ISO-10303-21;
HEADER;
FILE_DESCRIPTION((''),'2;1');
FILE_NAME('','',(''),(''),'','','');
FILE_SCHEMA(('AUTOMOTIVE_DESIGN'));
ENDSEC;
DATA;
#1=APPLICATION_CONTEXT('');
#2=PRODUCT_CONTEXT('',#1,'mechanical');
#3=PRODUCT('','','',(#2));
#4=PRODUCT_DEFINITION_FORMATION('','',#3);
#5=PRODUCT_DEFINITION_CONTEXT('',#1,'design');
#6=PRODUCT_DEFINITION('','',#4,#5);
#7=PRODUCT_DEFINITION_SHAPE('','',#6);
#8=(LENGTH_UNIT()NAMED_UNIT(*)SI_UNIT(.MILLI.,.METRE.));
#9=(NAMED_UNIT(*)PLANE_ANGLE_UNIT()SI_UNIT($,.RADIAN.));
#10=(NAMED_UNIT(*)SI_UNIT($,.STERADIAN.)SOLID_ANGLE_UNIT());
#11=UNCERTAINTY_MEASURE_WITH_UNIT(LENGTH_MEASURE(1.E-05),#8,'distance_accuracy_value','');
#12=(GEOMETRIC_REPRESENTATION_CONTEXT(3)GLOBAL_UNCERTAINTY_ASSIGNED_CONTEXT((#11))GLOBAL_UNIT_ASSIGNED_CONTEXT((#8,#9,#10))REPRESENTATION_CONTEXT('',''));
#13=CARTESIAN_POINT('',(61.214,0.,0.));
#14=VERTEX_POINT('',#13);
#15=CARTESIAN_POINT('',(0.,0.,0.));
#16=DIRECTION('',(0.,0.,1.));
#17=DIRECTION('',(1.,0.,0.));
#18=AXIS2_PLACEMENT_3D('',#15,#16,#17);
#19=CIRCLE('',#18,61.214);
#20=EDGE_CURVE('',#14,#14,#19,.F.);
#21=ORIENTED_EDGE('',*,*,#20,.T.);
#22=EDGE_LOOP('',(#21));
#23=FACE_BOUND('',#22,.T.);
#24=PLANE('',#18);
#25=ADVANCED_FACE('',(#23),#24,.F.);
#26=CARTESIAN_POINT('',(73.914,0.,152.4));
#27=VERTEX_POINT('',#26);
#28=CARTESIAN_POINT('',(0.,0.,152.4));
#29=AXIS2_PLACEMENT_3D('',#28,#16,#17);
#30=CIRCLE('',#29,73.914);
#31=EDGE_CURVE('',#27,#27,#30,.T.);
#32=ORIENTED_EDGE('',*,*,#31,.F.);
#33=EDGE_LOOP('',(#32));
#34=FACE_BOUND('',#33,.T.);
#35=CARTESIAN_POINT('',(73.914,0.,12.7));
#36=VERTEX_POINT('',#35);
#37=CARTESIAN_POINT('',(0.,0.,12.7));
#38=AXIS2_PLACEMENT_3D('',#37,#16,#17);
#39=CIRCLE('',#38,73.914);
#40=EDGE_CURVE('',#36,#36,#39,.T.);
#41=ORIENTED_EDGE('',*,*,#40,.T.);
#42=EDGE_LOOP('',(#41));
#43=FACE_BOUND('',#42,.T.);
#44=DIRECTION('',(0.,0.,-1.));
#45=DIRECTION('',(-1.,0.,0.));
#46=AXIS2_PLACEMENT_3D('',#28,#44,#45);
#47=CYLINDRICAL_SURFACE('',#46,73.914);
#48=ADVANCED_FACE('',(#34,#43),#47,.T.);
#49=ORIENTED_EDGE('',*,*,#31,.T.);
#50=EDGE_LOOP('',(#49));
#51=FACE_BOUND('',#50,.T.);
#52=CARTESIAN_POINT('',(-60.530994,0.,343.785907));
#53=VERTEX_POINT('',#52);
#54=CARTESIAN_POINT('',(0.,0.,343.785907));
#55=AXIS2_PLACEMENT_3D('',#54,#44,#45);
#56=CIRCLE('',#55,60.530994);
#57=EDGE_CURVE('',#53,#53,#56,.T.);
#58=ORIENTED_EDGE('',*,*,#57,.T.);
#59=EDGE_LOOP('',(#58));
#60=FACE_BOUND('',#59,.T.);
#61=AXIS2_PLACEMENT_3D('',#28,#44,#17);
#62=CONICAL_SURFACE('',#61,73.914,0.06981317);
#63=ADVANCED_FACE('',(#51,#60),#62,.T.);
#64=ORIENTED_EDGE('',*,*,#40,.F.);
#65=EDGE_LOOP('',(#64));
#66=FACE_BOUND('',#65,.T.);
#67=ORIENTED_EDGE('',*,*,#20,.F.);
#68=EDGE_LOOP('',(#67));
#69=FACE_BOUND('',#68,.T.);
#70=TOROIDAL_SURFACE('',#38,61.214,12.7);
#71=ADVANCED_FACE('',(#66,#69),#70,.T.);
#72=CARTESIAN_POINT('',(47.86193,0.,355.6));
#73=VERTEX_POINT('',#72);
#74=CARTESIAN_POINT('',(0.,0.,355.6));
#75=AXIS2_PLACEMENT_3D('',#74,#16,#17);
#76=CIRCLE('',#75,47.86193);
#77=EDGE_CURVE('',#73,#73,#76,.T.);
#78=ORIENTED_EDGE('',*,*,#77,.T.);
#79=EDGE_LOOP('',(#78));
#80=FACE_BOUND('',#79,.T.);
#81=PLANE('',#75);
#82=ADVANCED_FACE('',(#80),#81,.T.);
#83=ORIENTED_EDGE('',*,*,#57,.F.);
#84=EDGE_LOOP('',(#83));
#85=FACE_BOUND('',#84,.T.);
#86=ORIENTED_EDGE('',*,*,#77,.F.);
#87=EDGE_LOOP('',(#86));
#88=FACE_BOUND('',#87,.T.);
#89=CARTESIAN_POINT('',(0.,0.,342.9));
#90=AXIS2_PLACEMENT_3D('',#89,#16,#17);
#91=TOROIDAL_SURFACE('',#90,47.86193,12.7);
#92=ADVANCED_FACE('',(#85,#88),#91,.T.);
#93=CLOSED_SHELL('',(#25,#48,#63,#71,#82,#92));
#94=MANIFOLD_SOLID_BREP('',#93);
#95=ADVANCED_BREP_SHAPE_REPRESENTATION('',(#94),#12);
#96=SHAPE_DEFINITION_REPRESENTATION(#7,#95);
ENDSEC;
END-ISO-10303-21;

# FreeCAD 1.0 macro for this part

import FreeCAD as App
import Part
import Sketcher
from FreeCAD import Vector
Q = App.Units.Quantity


def edges_at(feature, points):
    """Names of the edges that pass closest to the given points."""
    edges = feature.Shape.Edges
    near = lambda p: min(range(len(edges)), key=lambda i: edges[i].distToShape(Part.Vertex(*p))[0])
    return sorted({f"Edge{near(p) + 1}" for p in points})

doc = App.newDocument("Part")
params = doc.addObject("Spreadsheet::Sheet", "Params")
for row, (alias, value) in enumerate([
    ("sketch1_diameter", "5.82 in"),
    ("pad1_length", "6 in"),
    ("sketch2_diameter", "5.82 in"),
    ("pad2_length", "8 in"),
    ("pad2_taper", "-4 deg"),
    ("fillet_radius", "0.5 in"),
], start=1):
    params.set(f"A{row}", alias)
    params.set(f"B{row}", "=" + value)
    params.setAlias(f"B{row}", alias)

body = doc.addObject("PartDesign::Body", "Body")

# Sketch on XY plane
sketch1 = body.newObject("Sketcher::SketchObject", "Sketch")
sketch1.AttachmentSupport = (doc.getObject("XY_Plane"), [""])
sketch1.MapMode = "FlatFace"
sketch1.addGeometry(Part.Circle(Vector(0, 0, 0), Vector(0, 0, 1), 74), False)
sketch1.addConstraint(Sketcher.Constraint("Coincident", 0, 3, -1, 1))
sketch1.addConstraint(Sketcher.Constraint("Diameter", 0, Q("5.82 in")))
sketch1.setExpression("Constraints[1]", "Params.sketch1_diameter")
pad1 = body.newObject("PartDesign::Pad", "Pad")
pad1.Profile = sketch1
pad1.setExpression("Length", "Params.pad1_length")

# Sketch on XY plane
sketch2 = body.newObject("Sketcher::SketchObject", "Sketch001")
sketch2.AttachmentSupport = (doc.getObject("XY_Plane"), [""])
sketch2.MapMode = "FlatFace"
sketch2.AttachmentOffset = App.Placement(Vector(0, 0, 6 * 25.4), App.Rotation())
sketch2.addGeometry(Part.Circle(Vector(0, 0, 0), Vector(0, 0, 1), 74), False)
sketch2.addConstraint(Sketcher.Constraint("Coincident", 0, 3, -1, 1))
sketch2.addConstraint(Sketcher.Constraint("Diameter", 0, Q("5.82 in")))
sketch2.setExpression("Constraints[1]", "Params.sketch2_diameter")
pad2 = body.newObject("PartDesign::Pad", "Pad001")
pad2.Profile = sketch2
pad2.setExpression("Length", "Params.pad2_length")
pad2.setExpression("TaperAngle", "Params.pad2_taper")
doc.recompute()

fillet = body.newObject("PartDesign::Fillet", "Fillet")
fillet.Base = (pad2, edges_at(pad2, [(-73.914, 0, 0), (-59.705, 0, 355.6)]))
fillet.setExpression("Radius", "Params.fillet_radius")

doc.recompute()
